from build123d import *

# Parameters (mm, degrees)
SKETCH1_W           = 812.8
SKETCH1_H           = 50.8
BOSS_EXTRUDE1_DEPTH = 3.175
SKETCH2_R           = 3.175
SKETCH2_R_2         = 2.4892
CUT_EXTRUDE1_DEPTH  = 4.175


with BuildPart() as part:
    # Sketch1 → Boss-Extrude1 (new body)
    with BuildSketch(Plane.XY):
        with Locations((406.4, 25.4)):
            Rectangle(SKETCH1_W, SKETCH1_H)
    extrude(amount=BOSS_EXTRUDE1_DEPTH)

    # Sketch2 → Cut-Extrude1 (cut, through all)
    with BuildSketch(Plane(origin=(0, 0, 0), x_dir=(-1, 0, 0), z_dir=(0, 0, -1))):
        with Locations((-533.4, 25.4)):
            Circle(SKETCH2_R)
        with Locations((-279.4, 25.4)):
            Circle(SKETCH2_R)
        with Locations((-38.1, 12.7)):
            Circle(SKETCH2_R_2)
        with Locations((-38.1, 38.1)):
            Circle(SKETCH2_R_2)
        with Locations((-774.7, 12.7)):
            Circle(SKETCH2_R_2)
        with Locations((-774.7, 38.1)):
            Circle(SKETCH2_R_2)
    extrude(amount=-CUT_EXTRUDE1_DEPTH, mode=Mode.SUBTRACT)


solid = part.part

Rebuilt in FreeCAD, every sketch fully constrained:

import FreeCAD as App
import Part
import Sketcher
Q = App.Units.Quantity


def add_polygon(sketch, points):
    """Adds a closed chain of lines whose ends are joined by coincident constraints."""
    first, n = sketch.GeometryCount, len(points)
    for a, b in zip(points, points[1:] + points[:1]):
        sketch.addGeometry(Part.LineSegment(App.Vector(*a, 0), App.Vector(*b, 0)), False)
    for i in range(n):
        sketch.addConstraint(Sketcher.Constraint("Coincident", first + i, 2, first + (i + 1) % n, 1))

doc = App.newDocument("Part")
body = doc.addObject("PartDesign::Body", "Body")

sketch1 = body.newObject("Sketcher::SketchObject", "Sketch")
sketch1.AttachmentSupport = (doc.getObject("XY_Plane"), [""])
sketch1.MapMode = "FlatFace"
add_polygon(sketch1, [(0, 51), (0, 0), (813, 0), (813, 51)])
sketch1.addConstraint([
    Sketcher.Constraint("Vertical", 0),
    Sketcher.Constraint("Horizontal", 1),
    Sketcher.Constraint("Vertical", 2),
    Sketcher.Constraint("Horizontal", 3),
    Sketcher.Constraint("Coincident", 0, 2, -1, 1),
    Sketcher.Constraint("DistanceX", 1, 1, 1, 2, Q("32 in")),
    Sketcher.Constraint("DistanceY", 0, 2, 0, 1, Q("2 in")),
])
pad1 = body.newObject("PartDesign::Pad", "Pad")
pad1.Profile = sketch1
pad1.Length = Q("0.125 in")

sketch2 = body.newObject("Sketcher::SketchObject", "Sketch001")
sketch2.AttachmentSupport = (doc.getObject("XY_Plane"), [""])
sketch2.MapMode = "FlatFace"
sketch2.addGeometry([
    Part.Circle(App.Vector(533.4, 25.4, 0), App.Vector(0, 0, 1), 3.2),
    Part.Circle(App.Vector(279.4, 25.4, 0), App.Vector(0, 0, 1), 3.2),
    Part.Circle(App.Vector(38.1, 12.7, 0), App.Vector(0, 0, 1), 2.5),
    Part.Circle(App.Vector(38.1, 38.1, 0), App.Vector(0, 0, 1), 2.5),
    Part.Circle(App.Vector(774.7, 12.7, 0), App.Vector(0, 0, 1), 2.5),
    Part.Circle(App.Vector(774.7, 38.1, 0), App.Vector(0, 0, 1), 2.5),
], False)
sketch2.addConstraint([
    Sketcher.Constraint("Equal", 0, 1),
    Sketcher.Constraint("Equal", 2, 3),
    Sketcher.Constraint("Equal", 3, 4),
    Sketcher.Constraint("Equal", 4, 5),
    Sketcher.Constraint("Horizontal", 0, 3, 1, 3),
    Sketcher.Constraint("Horizontal", 2, 3, 4, 3),
    Sketcher.Constraint("Horizontal", 3, 3, 5, 3),
    Sketcher.Constraint("Vertical", 2, 3, 3, 3),
    Sketcher.Constraint("Vertical", 4, 3, 5, 3),
    Sketcher.Constraint("Diameter", 0, Q("0.25 in")),
    Sketcher.Constraint("Diameter", 2, Q("0.196 in")),
    Sketcher.Constraint("DistanceX", -1, 1, 0, 3, Q("21 in")),
    Sketcher.Constraint("DistanceY", -1, 1, 0, 3, Q("1 in")),
    Sketcher.Constraint("DistanceX", -1, 1, 1, 3, Q("11 in")),
    Sketcher.Constraint("DistanceY", 2, 3, 3, 3, Q("1 in")),
    Sketcher.Constraint("DistanceX", 2, 3, 4, 3, Q("29 in")),
    Sketcher.Constraint("DistanceX", -1, 1, 2, 3, Q("1.5 in")),
    Sketcher.Constraint("DistanceY", -1, 1, 2, 3, Q("0.5 in")),
])
pocket1 = body.newObject("PartDesign::Pocket", "Pocket")
pocket1.Profile = sketch2
pocket1.Type = "ThroughAll"
pocket1.Reversed = True

doc.recompute()
